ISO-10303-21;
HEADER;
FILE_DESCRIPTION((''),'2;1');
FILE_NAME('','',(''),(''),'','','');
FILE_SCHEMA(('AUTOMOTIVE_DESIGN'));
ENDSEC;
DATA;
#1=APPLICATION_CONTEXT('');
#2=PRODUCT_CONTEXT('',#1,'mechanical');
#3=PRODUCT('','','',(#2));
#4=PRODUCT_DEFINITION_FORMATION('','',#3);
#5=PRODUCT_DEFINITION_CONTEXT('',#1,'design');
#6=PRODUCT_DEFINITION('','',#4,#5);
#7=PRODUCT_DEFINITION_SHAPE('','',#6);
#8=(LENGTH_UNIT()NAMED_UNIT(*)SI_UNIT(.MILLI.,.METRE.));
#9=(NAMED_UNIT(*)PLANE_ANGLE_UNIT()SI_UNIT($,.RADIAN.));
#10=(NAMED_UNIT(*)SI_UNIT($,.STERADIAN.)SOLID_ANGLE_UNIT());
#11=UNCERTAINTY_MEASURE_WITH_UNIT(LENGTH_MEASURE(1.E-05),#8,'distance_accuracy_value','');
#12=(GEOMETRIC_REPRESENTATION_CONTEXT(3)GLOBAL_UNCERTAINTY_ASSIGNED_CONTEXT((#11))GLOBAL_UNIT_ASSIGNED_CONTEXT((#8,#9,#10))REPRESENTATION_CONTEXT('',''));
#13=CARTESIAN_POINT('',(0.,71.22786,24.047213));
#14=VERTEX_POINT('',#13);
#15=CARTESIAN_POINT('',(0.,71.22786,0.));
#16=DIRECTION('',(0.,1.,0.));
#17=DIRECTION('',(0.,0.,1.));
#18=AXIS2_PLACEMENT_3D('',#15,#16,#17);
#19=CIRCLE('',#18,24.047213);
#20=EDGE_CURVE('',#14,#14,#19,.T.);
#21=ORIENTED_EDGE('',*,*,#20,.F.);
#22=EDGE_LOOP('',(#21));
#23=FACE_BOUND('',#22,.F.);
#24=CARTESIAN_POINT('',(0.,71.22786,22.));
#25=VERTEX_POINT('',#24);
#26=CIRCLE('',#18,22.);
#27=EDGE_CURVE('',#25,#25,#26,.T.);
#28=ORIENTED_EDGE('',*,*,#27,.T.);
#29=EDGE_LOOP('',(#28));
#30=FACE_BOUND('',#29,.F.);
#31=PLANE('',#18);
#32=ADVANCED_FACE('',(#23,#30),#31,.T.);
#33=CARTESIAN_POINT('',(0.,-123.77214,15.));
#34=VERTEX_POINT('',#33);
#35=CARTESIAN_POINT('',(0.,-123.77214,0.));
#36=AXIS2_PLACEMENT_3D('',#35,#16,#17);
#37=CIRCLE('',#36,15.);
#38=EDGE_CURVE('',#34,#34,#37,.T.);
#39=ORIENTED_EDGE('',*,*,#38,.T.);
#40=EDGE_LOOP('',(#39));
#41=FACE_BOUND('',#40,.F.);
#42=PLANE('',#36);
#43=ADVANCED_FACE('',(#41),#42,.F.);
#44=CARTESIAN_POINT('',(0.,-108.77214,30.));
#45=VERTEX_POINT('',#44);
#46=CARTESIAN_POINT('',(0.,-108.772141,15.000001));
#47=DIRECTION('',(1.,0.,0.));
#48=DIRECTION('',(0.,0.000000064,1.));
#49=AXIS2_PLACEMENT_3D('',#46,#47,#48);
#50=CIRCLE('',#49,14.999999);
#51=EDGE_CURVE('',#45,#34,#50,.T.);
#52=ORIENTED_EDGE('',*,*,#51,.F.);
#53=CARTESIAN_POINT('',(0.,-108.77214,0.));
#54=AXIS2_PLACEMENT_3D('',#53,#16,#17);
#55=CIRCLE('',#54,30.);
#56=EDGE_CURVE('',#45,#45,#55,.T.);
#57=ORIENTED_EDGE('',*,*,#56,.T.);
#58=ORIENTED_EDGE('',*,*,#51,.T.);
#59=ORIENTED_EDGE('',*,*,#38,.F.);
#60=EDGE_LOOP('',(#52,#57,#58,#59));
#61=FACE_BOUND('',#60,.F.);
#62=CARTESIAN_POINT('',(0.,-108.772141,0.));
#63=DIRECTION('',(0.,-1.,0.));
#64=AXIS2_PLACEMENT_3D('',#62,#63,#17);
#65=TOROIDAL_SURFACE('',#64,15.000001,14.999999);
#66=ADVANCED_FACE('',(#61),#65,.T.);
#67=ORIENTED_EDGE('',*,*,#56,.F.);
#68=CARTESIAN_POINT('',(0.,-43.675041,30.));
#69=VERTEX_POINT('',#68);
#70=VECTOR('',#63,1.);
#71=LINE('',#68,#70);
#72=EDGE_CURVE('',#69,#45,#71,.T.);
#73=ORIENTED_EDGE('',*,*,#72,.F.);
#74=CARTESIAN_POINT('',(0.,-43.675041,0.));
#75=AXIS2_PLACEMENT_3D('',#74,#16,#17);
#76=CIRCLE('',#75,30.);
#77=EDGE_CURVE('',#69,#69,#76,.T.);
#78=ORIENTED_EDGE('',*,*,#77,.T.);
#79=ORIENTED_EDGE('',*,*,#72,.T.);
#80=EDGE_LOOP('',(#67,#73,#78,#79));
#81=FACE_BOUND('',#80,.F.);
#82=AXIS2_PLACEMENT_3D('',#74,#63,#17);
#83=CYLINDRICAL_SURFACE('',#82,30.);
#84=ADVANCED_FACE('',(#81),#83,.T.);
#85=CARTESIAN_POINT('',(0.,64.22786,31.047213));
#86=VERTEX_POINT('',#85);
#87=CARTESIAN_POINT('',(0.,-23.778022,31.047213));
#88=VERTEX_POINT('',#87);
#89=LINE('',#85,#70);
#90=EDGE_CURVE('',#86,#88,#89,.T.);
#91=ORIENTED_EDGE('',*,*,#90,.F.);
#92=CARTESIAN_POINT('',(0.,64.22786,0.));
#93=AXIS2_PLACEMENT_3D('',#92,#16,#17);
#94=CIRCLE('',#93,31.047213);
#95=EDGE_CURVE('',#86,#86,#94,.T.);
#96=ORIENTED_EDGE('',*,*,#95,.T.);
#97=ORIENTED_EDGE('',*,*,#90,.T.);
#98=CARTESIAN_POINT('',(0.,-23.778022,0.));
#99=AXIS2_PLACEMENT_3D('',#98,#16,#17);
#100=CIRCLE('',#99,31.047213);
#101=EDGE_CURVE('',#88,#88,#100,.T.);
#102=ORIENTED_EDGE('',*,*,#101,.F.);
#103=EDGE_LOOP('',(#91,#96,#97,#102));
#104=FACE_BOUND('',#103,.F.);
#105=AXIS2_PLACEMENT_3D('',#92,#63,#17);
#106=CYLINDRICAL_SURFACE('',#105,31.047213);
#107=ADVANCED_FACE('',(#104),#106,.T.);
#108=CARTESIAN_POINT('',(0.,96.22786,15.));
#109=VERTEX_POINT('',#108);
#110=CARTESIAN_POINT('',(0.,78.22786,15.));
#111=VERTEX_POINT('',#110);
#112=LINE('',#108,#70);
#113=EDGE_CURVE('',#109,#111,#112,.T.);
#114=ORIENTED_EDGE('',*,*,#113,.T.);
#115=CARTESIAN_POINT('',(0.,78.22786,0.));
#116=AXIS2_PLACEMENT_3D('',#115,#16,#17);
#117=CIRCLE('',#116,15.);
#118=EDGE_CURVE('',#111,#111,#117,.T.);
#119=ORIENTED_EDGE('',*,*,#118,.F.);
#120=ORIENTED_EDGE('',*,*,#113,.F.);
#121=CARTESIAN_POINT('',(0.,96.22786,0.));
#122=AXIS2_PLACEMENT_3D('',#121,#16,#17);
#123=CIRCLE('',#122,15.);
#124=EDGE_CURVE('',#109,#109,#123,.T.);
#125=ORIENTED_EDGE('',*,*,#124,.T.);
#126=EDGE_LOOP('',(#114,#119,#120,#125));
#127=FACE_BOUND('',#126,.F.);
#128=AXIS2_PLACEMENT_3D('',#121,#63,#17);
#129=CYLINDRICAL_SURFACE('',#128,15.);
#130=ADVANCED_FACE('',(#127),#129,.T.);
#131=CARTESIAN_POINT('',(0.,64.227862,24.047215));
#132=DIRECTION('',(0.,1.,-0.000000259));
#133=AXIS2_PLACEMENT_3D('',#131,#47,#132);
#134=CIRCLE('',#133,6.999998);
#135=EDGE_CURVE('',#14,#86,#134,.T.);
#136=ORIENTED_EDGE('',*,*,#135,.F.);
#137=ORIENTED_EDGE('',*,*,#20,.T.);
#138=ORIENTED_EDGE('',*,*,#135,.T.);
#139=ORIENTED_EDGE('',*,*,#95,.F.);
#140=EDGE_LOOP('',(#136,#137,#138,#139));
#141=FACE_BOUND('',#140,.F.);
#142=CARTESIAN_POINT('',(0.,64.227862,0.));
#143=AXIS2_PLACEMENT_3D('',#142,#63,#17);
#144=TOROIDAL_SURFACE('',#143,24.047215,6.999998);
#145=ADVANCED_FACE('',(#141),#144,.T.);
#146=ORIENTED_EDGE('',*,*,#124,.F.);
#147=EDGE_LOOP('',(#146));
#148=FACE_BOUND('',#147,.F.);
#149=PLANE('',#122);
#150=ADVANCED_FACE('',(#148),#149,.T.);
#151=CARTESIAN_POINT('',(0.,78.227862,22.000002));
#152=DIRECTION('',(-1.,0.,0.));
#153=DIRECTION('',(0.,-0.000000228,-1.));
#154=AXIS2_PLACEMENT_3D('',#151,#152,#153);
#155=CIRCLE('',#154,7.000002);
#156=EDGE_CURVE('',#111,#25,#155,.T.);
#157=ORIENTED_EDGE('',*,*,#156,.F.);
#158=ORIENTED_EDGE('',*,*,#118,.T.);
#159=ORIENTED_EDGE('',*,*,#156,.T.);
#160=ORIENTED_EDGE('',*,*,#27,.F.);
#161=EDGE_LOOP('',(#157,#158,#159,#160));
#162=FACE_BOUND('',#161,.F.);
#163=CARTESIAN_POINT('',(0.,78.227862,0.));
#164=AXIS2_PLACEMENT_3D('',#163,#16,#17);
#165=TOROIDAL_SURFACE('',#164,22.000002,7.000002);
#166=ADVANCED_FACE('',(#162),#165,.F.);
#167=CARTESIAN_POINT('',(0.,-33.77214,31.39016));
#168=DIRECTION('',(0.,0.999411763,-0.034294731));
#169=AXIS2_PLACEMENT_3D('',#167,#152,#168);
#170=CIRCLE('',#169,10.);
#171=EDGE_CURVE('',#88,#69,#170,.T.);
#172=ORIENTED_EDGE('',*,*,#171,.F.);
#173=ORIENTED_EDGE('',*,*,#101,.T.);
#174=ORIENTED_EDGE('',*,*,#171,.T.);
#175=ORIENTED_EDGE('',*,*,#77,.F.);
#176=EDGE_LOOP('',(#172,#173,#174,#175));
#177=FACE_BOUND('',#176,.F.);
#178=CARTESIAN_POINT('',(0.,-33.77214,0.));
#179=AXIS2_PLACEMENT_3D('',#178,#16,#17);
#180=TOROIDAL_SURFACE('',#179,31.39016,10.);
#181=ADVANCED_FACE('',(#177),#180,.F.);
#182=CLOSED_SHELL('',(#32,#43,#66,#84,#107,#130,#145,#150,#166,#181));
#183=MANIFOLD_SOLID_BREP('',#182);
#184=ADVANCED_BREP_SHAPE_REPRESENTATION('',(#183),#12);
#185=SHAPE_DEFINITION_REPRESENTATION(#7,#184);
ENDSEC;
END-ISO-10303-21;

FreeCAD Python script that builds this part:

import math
import FreeCAD as App
import Part
import Sketcher
from FreeCAD import Vector

doc = App.newDocument("Part")
body = doc.addObject("PartDesign::Body", "Body")

# Sketch on YZ plane
sketch1 = body.newObject("Sketcher::SketchObject", "Sketch")
sketch1.AttachmentSupport = (doc.getObject("YZ_Plane"), [""])
sketch1.MapMode = "FlatFace"
sketch1.addGeometry(Part.LineSegment(Vector(-123.77214, 15, 0), Vector(-123.77214, 0, 0)), False)
sketch1.addGeometry(Part.LineSegment(Vector(-123.77214, 0, 0), Vector(96.22786, 0, 0)), False)
sketch1.addGeometry(Part.LineSegment(Vector(96.22786, 0, 0), Vector(96.22786, 15, 0)), False)
sketch1.addGeometry(Part.LineSegment(Vector(96.22786, 15, 0), Vector(78.22786, 15, 0)), False)
sketch1.addGeometry(Part.ArcOfCircle(Part.Circle(Vector(78.227862, 22.000002, 0), Vector(0, 0, 1), 7.000002), math.radians(-179.999987), math.radians(-90.000013)), False)
sketch1.addGeometry(Part.LineSegment(Vector(71.22786, 22, 0), Vector(71.22786, 24.047213, 0)), False)
sketch1.addGeometry(Part.ArcOfCircle(Part.Circle(Vector(64.227862, 24.047215, 0), Vector(0, 0, 1), 6.999998), math.radians(-0.000015), math.radians(90.000015)), False)
sketch1.addGeometry(Part.LineSegment(Vector(64.22786, 31.047213, 0), Vector(-23.778022, 31.047213, 0)), False)
sketch1.addGeometry(Part.ArcOfCircle(Part.Circle(Vector(-33.77214, 31.39016, 0), Vector(0, 0, 1), 10), math.radians(-172.009088), math.radians(-1.965329)), False)
sketch1.addGeometry(Part.LineSegment(Vector(-43.675041, 30, 0), Vector(-108.77214, 30, 0)), False)
sketch1.addGeometry(Part.ArcOfCircle(Part.Circle(Vector(-108.772141, 15.000001, 0), Vector(0, 0, 1), 14.999999), math.radians(89.999996), math.radians(180.000004)), False)
sketch1.addConstraint(Sketcher.Constraint("Coincident", 0, 2, 1, 1))
sketch1.addConstraint(Sketcher.Constraint("Coincident", 1, 2, 2, 1))
sketch1.addConstraint(Sketcher.Constraint("Coincident", 2, 2, 3, 1))
sketch1.addConstraint(Sketcher.Constraint("Coincident", 3, 2, 4, 2))
sketch1.addConstraint(Sketcher.Constraint("Coincident", 4, 1, 5, 1))
sketch1.addConstraint(Sketcher.Constraint("Coincident", 5, 2, 6, 1))
sketch1.addConstraint(Sketcher.Constraint("Coincident", 6, 2, 7, 1))
sketch1.addConstraint(Sketcher.Constraint("Coincident", 7, 2, 8, 2))
sketch1.addConstraint(Sketcher.Constraint("Coincident", 8, 1, 9, 1))
sketch1.addConstraint(Sketcher.Constraint("Coincident", 9, 2, 10, 1))
sketch1.addConstraint(Sketcher.Constraint("Coincident", 10, 2, 0, 1))
sketch1.addConstraint(Sketcher.Constraint("Vertical", 0))
sketch1.addConstraint(Sketcher.Constraint("Horizontal", 1))
sketch1.addConstraint(Sketcher.Constraint("Vertical", 2))
sketch1.addConstraint(Sketcher.Constraint("Horizontal", 3))
sketch1.addConstraint(Sketcher.Constraint("Vertical", 5))
sketch1.addConstraint(Sketcher.Constraint("Horizontal", 7))
sketch1.addConstraint(Sketcher.Constraint("Horizontal", 9))
sketch1.addConstraint(Sketcher.Constraint("PointOnObject", 0, 2, -1))
sketch1.addConstraint(Sketcher.Constraint("Radius", 4, 7.000002))
sketch1.addConstraint(Sketcher.Constraint("Radius", 6, 6.999998))
sketch1.addConstraint(Sketcher.Constraint("Radius", 8, 10.0))
sketch1.addConstraint(Sketcher.Constraint("Radius", 10, 14.999999))
sketch1.addConstraint(Sketcher.Constraint("DistanceX", 1, 1, 1, 2, 220.0))
sketch1.addConstraint(Sketcher.Constraint("DistanceX", 3, 2, 3, 1, 18.0))
sketch1.addConstraint(Sketcher.Constraint("DistanceY", 0, 2, 0, 1, 15.0))
sketch1.addConstraint(Sketcher.Constraint("DistanceY", 2, 1, 2, 2, 15.0))
sketch1.addConstraint(Sketcher.Constraint("DistanceY", -1, 1, 10, 3, 15.000001))
sketch1.addConstraint(Sketcher.Constraint("DistanceY", -1, 1, 4, 1, 22.0))
sketch1.addConstraint(Sketcher.Constraint("DistanceX", 8, 3, 6, 3, 98.000001))
sketch1.addConstraint(Sketcher.Constraint("DistanceX", 10, 3, 8, 3, 75.000001))
sketch1.addConstraint(Sketcher.Constraint("DistanceX", 6, 2, 5, 2, 7.0))
sketch1.addConstraint(Sketcher.Constraint("DistanceY", 5, 2, 6, 2, 7.0))
sketch1.addConstraint(Sketcher.Constraint("DistanceX", 0, 2, 9, 2, 15.0))
sketch1.addConstraint(Sketcher.Constraint("DistanceX", 9, 2, 9, 1, 65.097099))
sketch1.addConstraint(Sketcher.Constraint("DistanceX", 7, 2, 7, 1, 88.005882))
sketch1.addConstraint(Sketcher.Constraint("DistanceX", -1, 1, 4, 3, 78.227862))
revolution = body.newObject("PartDesign::Revolution", "Revolution")
revolution.Profile = sketch1
revolution.ReferenceAxis = (sketch1, ["H_Axis"])
revolution.Angle = 360

doc.recompute()
